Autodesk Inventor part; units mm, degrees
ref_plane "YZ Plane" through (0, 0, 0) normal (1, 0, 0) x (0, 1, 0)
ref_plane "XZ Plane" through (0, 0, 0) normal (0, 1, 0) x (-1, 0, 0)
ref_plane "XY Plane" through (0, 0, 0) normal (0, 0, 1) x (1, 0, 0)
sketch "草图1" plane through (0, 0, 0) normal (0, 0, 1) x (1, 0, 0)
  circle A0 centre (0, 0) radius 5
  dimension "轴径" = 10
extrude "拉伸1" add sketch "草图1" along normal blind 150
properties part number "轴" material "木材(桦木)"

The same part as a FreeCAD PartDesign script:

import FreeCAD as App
import Part
import Sketcher

V = App.Vector
Q = App.Units.Quantity

doc = App.newDocument("Part")
body = doc.addObject("PartDesign::Body", "Body")

# Sketch on XY plane
sketch1 = body.newObject("Sketcher::SketchObject", "Sketch")
sketch1.AttachmentSupport = (doc.getObject("XY_Plane"), [""])
sketch1.MapMode = "FlatFace"
sketch1.addGeometry(Part.Circle(V(0, 0, 0), V(0, 0, 1), 5), False)
sketch1.addConstraint([
    Sketcher.Constraint("Coincident", 0, 3, -1, 1),
    Sketcher.Constraint("Diameter", 0, Q("10 mm")),
])
pad1 = body.newObject("PartDesign::Pad", "Pad")
pad1.Profile = sketch1
pad1.Length = 150

doc.recompute()
